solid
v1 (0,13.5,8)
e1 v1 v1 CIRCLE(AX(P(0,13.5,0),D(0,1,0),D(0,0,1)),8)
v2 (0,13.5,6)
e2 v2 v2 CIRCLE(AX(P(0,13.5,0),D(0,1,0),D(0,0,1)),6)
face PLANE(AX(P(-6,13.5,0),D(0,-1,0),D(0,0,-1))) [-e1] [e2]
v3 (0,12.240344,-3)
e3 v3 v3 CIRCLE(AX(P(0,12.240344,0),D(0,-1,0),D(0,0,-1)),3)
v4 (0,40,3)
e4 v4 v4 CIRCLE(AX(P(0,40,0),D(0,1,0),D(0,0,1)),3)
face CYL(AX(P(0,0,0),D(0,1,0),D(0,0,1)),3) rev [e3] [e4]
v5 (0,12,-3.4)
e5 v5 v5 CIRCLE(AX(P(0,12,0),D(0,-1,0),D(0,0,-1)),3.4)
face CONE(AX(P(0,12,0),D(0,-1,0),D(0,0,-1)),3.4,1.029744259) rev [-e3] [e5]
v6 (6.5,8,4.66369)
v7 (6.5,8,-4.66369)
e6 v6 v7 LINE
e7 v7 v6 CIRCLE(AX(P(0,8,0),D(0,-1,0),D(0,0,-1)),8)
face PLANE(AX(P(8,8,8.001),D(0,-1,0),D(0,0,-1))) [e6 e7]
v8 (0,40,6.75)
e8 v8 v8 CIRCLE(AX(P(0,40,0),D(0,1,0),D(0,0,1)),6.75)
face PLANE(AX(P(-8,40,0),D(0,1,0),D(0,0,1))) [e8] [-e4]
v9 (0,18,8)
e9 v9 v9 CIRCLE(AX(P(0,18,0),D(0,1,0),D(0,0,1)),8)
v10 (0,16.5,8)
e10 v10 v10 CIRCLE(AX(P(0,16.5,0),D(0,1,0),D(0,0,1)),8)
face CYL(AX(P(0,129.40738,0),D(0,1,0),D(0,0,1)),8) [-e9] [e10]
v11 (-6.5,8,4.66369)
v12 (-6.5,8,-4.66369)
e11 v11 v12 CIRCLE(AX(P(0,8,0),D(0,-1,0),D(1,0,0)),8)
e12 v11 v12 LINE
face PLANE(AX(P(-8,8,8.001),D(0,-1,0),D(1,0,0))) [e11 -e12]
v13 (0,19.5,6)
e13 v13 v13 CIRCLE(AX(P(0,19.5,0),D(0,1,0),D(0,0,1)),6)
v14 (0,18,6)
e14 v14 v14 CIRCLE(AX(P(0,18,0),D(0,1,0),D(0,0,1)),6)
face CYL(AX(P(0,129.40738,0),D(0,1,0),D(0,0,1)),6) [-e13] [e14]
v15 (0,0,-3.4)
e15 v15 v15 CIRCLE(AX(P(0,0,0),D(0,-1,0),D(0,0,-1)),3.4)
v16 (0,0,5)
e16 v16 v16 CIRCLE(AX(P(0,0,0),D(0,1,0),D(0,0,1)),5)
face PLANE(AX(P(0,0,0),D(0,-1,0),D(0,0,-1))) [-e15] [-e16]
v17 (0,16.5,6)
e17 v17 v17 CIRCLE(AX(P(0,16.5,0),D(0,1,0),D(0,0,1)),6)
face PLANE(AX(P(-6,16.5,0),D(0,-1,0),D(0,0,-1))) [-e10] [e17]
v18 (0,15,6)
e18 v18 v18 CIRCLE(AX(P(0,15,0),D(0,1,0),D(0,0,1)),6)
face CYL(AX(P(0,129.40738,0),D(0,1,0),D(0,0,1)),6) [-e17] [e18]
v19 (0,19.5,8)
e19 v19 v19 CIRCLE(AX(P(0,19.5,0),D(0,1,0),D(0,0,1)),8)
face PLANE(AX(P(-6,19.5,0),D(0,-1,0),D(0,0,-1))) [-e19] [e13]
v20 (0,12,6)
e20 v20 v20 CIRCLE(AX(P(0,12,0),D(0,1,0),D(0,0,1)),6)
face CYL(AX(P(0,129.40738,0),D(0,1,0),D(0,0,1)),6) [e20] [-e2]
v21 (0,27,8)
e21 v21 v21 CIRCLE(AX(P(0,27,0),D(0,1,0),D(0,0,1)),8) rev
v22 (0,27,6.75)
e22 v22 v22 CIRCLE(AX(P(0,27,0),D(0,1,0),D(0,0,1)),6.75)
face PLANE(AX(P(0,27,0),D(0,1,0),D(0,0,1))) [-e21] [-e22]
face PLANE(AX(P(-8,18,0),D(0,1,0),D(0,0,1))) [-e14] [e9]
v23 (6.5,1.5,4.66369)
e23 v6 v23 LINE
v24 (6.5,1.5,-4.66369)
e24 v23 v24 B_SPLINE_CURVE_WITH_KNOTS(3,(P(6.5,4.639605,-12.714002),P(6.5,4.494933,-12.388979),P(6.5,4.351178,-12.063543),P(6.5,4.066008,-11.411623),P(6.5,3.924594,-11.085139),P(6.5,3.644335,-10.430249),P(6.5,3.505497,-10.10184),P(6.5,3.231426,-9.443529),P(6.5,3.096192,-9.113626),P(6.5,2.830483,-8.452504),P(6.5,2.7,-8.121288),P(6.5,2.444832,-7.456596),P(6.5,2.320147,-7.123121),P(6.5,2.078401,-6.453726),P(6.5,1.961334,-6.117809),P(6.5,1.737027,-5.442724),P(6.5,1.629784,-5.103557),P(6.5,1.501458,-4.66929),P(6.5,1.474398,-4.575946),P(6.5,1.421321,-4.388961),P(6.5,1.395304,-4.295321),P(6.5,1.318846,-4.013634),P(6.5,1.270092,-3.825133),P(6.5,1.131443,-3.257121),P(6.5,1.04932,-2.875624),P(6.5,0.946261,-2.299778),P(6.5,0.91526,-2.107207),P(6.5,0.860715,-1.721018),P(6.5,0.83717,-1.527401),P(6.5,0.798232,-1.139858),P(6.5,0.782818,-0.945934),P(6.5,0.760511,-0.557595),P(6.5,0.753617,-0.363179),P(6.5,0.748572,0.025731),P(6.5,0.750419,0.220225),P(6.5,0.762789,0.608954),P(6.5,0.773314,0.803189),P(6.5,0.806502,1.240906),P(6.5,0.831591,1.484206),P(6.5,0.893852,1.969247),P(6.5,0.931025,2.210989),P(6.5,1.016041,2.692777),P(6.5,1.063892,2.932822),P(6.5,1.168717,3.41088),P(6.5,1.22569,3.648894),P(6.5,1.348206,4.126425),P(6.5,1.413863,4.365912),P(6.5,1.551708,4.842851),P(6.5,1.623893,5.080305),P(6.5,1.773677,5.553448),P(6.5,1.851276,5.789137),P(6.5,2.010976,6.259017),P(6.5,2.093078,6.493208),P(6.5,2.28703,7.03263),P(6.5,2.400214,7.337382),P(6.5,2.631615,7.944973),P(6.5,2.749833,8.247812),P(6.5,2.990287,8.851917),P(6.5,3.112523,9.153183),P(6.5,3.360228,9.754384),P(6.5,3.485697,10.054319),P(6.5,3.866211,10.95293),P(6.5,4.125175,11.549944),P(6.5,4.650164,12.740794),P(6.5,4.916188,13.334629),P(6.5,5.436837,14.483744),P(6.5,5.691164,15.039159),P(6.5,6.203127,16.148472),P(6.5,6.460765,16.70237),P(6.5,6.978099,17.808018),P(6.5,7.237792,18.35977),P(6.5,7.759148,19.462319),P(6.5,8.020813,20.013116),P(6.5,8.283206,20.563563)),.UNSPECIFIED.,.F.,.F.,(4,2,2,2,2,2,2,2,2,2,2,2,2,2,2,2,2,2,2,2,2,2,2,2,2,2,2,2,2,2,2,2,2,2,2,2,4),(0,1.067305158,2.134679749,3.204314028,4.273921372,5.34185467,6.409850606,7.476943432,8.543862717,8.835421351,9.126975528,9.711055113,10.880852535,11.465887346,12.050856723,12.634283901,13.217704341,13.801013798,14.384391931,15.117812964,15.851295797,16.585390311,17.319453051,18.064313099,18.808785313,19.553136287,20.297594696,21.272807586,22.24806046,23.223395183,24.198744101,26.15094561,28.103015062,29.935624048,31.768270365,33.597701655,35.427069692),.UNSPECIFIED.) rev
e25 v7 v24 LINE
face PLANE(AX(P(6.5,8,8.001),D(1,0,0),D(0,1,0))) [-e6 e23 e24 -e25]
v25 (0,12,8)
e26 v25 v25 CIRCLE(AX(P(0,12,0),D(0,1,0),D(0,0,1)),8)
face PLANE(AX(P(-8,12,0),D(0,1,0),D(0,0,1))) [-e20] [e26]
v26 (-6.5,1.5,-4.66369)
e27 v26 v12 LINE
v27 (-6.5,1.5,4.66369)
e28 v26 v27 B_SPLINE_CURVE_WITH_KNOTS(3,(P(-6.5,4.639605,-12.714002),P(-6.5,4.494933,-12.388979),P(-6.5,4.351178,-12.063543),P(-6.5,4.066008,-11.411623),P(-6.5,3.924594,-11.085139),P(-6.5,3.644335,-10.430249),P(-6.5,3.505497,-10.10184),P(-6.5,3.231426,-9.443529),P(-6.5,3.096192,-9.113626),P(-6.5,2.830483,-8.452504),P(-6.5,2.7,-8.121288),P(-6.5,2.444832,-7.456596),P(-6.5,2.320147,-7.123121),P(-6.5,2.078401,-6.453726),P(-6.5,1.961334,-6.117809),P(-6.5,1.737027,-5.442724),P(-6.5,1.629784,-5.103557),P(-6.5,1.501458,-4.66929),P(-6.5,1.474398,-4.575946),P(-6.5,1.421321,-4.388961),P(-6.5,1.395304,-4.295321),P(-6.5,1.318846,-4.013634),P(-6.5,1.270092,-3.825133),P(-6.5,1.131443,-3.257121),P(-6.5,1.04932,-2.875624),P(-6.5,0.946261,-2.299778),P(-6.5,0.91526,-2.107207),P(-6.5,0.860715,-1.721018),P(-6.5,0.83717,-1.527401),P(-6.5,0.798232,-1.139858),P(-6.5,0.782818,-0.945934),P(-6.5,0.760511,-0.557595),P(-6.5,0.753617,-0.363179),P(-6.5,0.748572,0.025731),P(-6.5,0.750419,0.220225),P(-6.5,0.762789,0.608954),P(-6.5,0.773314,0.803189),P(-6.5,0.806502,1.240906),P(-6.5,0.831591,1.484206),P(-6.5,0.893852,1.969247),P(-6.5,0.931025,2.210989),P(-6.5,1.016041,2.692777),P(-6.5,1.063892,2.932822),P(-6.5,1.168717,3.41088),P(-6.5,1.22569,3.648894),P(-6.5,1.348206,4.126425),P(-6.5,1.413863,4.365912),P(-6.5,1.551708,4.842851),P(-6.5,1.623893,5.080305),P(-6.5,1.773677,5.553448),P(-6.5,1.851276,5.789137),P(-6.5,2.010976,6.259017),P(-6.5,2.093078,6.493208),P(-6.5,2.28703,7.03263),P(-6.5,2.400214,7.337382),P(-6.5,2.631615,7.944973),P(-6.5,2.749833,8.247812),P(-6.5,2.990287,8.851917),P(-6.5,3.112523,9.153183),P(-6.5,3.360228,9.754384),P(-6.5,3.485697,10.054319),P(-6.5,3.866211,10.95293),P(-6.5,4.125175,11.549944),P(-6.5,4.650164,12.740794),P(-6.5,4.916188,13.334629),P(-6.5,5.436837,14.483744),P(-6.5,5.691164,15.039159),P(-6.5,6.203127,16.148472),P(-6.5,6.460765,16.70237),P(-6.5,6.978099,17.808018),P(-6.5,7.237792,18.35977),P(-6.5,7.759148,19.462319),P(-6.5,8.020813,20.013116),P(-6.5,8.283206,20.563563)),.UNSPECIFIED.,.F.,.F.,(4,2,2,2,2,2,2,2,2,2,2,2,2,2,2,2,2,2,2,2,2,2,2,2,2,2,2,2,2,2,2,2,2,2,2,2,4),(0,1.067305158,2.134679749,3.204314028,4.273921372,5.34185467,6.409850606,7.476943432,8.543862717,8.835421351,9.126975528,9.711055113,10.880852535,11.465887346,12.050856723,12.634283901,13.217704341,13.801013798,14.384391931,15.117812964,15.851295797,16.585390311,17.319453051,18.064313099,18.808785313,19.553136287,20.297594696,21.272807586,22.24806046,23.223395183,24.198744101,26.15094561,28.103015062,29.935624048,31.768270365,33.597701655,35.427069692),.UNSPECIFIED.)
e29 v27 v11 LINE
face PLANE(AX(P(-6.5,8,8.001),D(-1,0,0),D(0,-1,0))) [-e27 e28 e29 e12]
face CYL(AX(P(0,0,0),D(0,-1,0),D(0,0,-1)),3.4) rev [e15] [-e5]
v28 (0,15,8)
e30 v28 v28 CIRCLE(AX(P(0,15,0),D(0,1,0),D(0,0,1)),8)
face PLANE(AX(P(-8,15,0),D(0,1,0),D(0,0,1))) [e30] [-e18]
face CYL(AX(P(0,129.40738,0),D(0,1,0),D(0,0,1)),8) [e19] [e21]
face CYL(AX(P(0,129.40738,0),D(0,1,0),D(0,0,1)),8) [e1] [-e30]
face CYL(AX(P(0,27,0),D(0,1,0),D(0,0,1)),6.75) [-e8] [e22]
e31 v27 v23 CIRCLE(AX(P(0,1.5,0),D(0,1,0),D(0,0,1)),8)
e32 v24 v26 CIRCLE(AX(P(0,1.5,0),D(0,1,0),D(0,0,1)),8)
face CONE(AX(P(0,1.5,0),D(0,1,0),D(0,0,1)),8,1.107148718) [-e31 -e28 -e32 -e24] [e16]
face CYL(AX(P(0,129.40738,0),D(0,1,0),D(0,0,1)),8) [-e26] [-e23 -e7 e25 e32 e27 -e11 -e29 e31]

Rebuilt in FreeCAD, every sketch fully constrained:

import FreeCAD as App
import Part
import Sketcher
from FreeCAD import Vector

doc = App.newDocument("Part")
body = doc.addObject("PartDesign::Body", "Body")

# Sketch on XY plane
sketch1 = body.newObject("Sketcher::SketchObject", "Sketch")
sketch1.AttachmentSupport = (doc.getObject("XY_Plane"), [""])
sketch1.MapMode = "FlatFace"
sketch1.addGeometry([
    Part.LineSegment(Vector(-5, 0, 0), Vector(0, 0, 0)),  # 0
    Part.LineSegment(Vector(0, 0, 0), Vector(0, 40, 0)),  # 1
    Part.LineSegment(Vector(0, 40, 0), Vector(-8, 40, 0)),  # 2
    Part.LineSegment(Vector(-8, 40, 0), Vector(-8, 19.5, 0)),  # 3
    Part.LineSegment(Vector(-8, 19.5, 0), Vector(-6, 19.5, 0)),  # 4
    Part.LineSegment(Vector(-6, 19.5, 0), Vector(-6, 18, 0)),  # 5
    Part.LineSegment(Vector(-6, 18, 0), Vector(-8, 18, 0)),  # 6
    Part.LineSegment(Vector(-8, 18, 0), Vector(-8, 16.5, 0)),  # 7
    Part.LineSegment(Vector(-8, 16.5, 0), Vector(-6, 16.5, 0)),  # 8
    Part.LineSegment(Vector(-6, 16.5, 0), Vector(-6, 15, 0)),  # 9
    Part.LineSegment(Vector(-6, 15, 0), Vector(-8, 15, 0)),  # 10
    Part.LineSegment(Vector(-8, 15, 0), Vector(-8, 13.5, 0)),  # 11
    Part.LineSegment(Vector(-8, 13.5, 0), Vector(-6, 13.5, 0)),  # 12
    Part.LineSegment(Vector(-6, 13.5, 0), Vector(-6, 12, 0)),  # 13
    Part.LineSegment(Vector(-6, 12, 0), Vector(-8, 12, 0)),  # 14
    Part.LineSegment(Vector(-8, 12, 0), Vector(-8, 1.5, 0)),  # 15
    Part.LineSegment(Vector(-8, 1.5, 0), Vector(-5, 0, 0)),  # 16
], False)
sketch1.addConstraint([
    Sketcher.Constraint("Coincident", 0, 2, 1, 1),
    Sketcher.Constraint("Coincident", 1, 2, 2, 1),
    Sketcher.Constraint("Coincident", 2, 2, 3, 1),
    Sketcher.Constraint("Coincident", 3, 2, 4, 1),
    Sketcher.Constraint("Coincident", 4, 2, 5, 1),
    Sketcher.Constraint("Coincident", 5, 2, 6, 1),
    Sketcher.Constraint("Coincident", 6, 2, 7, 1),
    Sketcher.Constraint("Coincident", 7, 2, 8, 1),
    Sketcher.Constraint("Coincident", 8, 2, 9, 1),
    Sketcher.Constraint("Coincident", 9, 2, 10, 1),
    Sketcher.Constraint("Coincident", 10, 2, 11, 1),
    Sketcher.Constraint("Coincident", 11, 2, 12, 1),
    Sketcher.Constraint("Coincident", 12, 2, 13, 1),
    Sketcher.Constraint("Coincident", 13, 2, 14, 1),
    Sketcher.Constraint("Coincident", 14, 2, 15, 1),
    Sketcher.Constraint("Coincident", 15, 2, 16, 1),
    Sketcher.Constraint("Coincident", 16, 2, 0, 1),
    Sketcher.Constraint("Horizontal", 0),
    Sketcher.Constraint("Vertical", 1),
    Sketcher.Constraint("Horizontal", 2),
    Sketcher.Constraint("Vertical", 3),
    Sketcher.Constraint("Horizontal", 4),
    Sketcher.Constraint("Vertical", 5),
    Sketcher.Constraint("Horizontal", 6),
    Sketcher.Constraint("Vertical", 7),
    Sketcher.Constraint("Horizontal", 8),
    Sketcher.Constraint("Vertical", 9),
    Sketcher.Constraint("Horizontal", 10),
    Sketcher.Constraint("Vertical", 11),
    Sketcher.Constraint("Horizontal", 12),
    Sketcher.Constraint("Vertical", 13),
    Sketcher.Constraint("Horizontal", 14),
    Sketcher.Constraint("Vertical", 15),
    Sketcher.Constraint("Coincident", 0, 2, -1, 1),
    Sketcher.Constraint("Vertical", 3, 2, 6, 2),
    Sketcher.Constraint("Vertical", 5, 2, 8, 2),
    Sketcher.Constraint("Vertical", 7, 2, 10, 2),
    Sketcher.Constraint("Vertical", 9, 2, 12, 2),
    Sketcher.Constraint("Vertical", 11, 2, 14, 2),
    Sketcher.Constraint("Equal", 5, 7),
    Sketcher.Constraint("Equal", 7, 9),
    Sketcher.Constraint("Equal", 9, 11),
    Sketcher.Constraint("Equal", 11, 13),
    Sketcher.Constraint("DistanceX", 0, 1, 0, 2, 5.0),
    Sketcher.Constraint("DistanceX", 2, 2, 2, 1, 8.0),
    Sketcher.Constraint("DistanceX", 4, 1, 4, 2, 2.0),
    Sketcher.Constraint("DistanceY", 1, 1, 1, 2, 40.0),
    Sketcher.Constraint("DistanceY", 3, 2, 3, 1, 20.5),
    Sketcher.Constraint("DistanceY", 5, 2, 5, 1, 1.5),
    Sketcher.Constraint("DistanceY", 15, 2, 15, 1, 10.5),
])
revolution = body.newObject("PartDesign::Revolution", "Revolution")
revolution.Profile = sketch1
revolution.ReferenceAxis = (sketch1, ["V_Axis"])
revolution.Angle = 360

# Sketch on XY plane
sketch2 = body.newObject("Sketcher::SketchObject", "Sketch001")
sketch2.AttachmentSupport = (doc.getObject("XY_Plane"), [""])
sketch2.MapMode = "FlatFace"
sketch2.addGeometry([
    Part.LineSegment(Vector(-8, 8, 0), Vector(-8, 0, 0)),
    Part.LineSegment(Vector(-8, 0, 0), Vector(-6.5, 0, 0)),
    Part.LineSegment(Vector(-6.5, 0, 0), Vector(-6.5, 8, 0)),
    Part.LineSegment(Vector(-6.5, 8, 0), Vector(-8, 8, 0)),
], False)
sketch2.addConstraint([
    Sketcher.Constraint("Coincident", 0, 2, 1, 1),
    Sketcher.Constraint("Coincident", 1, 2, 2, 1),
    Sketcher.Constraint("Coincident", 2, 2, 3, 1),
    Sketcher.Constraint("Coincident", 3, 2, 0, 1),
    Sketcher.Constraint("Vertical", 0),
    Sketcher.Constraint("Horizontal", 1),
    Sketcher.Constraint("Vertical", 2),
    Sketcher.Constraint("Horizontal", 3),
    Sketcher.Constraint("PointOnObject", 0, 2, -1),
    Sketcher.Constraint("DistanceY", 0, 2, 0, 1, 8.0),
    Sketcher.Constraint("DistanceX", 1, 1, 1, 2, 1.5),
    Sketcher.Constraint("DistanceX", 0, 2, -1, 1, 8.0),
])
pocket1 = body.newObject("PartDesign::Pocket", "Pocket")
pocket1.Profile = sketch2
pocket1.Length = 4.66369

# Sketch on XY plane
sketch3 = body.newObject("Sketcher::SketchObject", "Sketch002")
sketch3.AttachmentSupport = (doc.getObject("XY_Plane"), [""])
sketch3.MapMode = "FlatFace"
sketch3.addGeometry([
    Part.LineSegment(Vector(6.5, 8, 0), Vector(6.5, 0, 0)),
    Part.LineSegment(Vector(6.5, 0, 0), Vector(8, 0, 0)),
    Part.LineSegment(Vector(8, 0, 0), Vector(8, 8, 0)),
    Part.LineSegment(Vector(8, 8, 0), Vector(6.5, 8, 0)),
], False)
sketch3.addConstraint([
    Sketcher.Constraint("Coincident", 0, 2, 1, 1),
    Sketcher.Constraint("Coincident", 1, 2, 2, 1),
    Sketcher.Constraint("Coincident", 2, 2, 3, 1),
    Sketcher.Constraint("Coincident", 3, 2, 0, 1),
    Sketcher.Constraint("Vertical", 0),
    Sketcher.Constraint("Horizontal", 1),
    Sketcher.Constraint("Vertical", 2),
    Sketcher.Constraint("Horizontal", 3),
    Sketcher.Constraint("PointOnObject", 0, 2, -1),
    Sketcher.Constraint("DistanceY", 0, 2, 0, 1, 8.0),
    Sketcher.Constraint("DistanceX", 1, 1, 1, 2, 1.5),
    Sketcher.Constraint("DistanceX", -1, 1, 1, 2, 8.0),
])
pocket2 = body.newObject("PartDesign::Pocket", "Pocket001")
pocket2.Profile = sketch3
pocket2.Length = 4.66369

# Sketch on XY plane
sketch4 = body.newObject("Sketcher::SketchObject", "Sketch003")
sketch4.AttachmentSupport = (doc.getObject("XY_Plane"), [""])
sketch4.MapMode = "FlatFace"
sketch4.addGeometry([
    Part.LineSegment(Vector(-8, 8, 0), Vector(-8, 0, 0)),
    Part.LineSegment(Vector(-8, 0, 0), Vector(-6.5, 0, 0)),
    Part.LineSegment(Vector(-6.5, 0, 0), Vector(-6.5, 8, 0)),
    Part.LineSegment(Vector(-6.5, 8, 0), Vector(-8, 8, 0)),
], False)
sketch4.addConstraint([
    Sketcher.Constraint("Coincident", 0, 2, 1, 1),
    Sketcher.Constraint("Coincident", 1, 2, 2, 1),
    Sketcher.Constraint("Coincident", 2, 2, 3, 1),
    Sketcher.Constraint("Coincident", 3, 2, 0, 1),
    Sketcher.Constraint("Vertical", 0),
    Sketcher.Constraint("Horizontal", 1),
    Sketcher.Constraint("Vertical", 2),
    Sketcher.Constraint("Horizontal", 3),
    Sketcher.Constraint("PointOnObject", 0, 2, -1),
    Sketcher.Constraint("DistanceY", 0, 2, 0, 1, 8.0),
    Sketcher.Constraint("DistanceX", 1, 1, 1, 2, 1.5),
    Sketcher.Constraint("DistanceX", 0, 2, -1, 1, 8.0),
])
pocket3 = body.newObject("PartDesign::Pocket", "Pocket002")
pocket3.Profile = sketch4
pocket3.Length = 4.66369
pocket3.Reversed = True

# Sketch on XY plane
sketch5 = body.newObject("Sketcher::SketchObject", "Sketch004")
sketch5.AttachmentSupport = (doc.getObject("XY_Plane"), [""])
sketch5.MapMode = "FlatFace"
sketch5.addGeometry([
    Part.LineSegment(Vector(6.5, 8, 0), Vector(6.5, 0, 0)),
    Part.LineSegment(Vector(6.5, 0, 0), Vector(8, 0, 0)),
    Part.LineSegment(Vector(8, 0, 0), Vector(8, 8, 0)),
    Part.LineSegment(Vector(8, 8, 0), Vector(6.5, 8, 0)),
], False)
sketch5.addConstraint([
    Sketcher.Constraint("Coincident", 0, 2, 1, 1),
    Sketcher.Constraint("Coincident", 1, 2, 2, 1),
    Sketcher.Constraint("Coincident", 2, 2, 3, 1),
    Sketcher.Constraint("Coincident", 3, 2, 0, 1),
    Sketcher.Constraint("Vertical", 0),
    Sketcher.Constraint("Horizontal", 1),
    Sketcher.Constraint("Vertical", 2),
    Sketcher.Constraint("Horizontal", 3),
    Sketcher.Constraint("PointOnObject", 0, 2, -1),
    Sketcher.Constraint("DistanceY", 0, 2, 0, 1, 8.0),
    Sketcher.Constraint("DistanceX", 1, 1, 1, 2, 1.5),
    Sketcher.Constraint("DistanceX", -1, 1, 1, 2, 8.0),
])
pocket4 = body.newObject("PartDesign::Pocket", "Pocket003")
pocket4.Profile = sketch5
pocket4.Length = 4.66369
pocket4.Reversed = True

# Sketch on XZ plane
sketch6 = body.newObject("Sketcher::SketchObject", "Sketch005")
sketch6.AttachmentSupport = (doc.getObject("XZ_Plane"), [""])
sketch6.MapMode = "FlatFace"
sketch6.AttachmentOffset = App.Placement(Vector(0, 0, -40), App.Rotation())
sketch6.addGeometry(Part.Circle(Vector(0, 0, 0), Vector(0, 0, 1), 3), False)
sketch6.addConstraint([
    Sketcher.Constraint("Coincident", 0, 3, -1, 1),
    Sketcher.Constraint("Diameter", 0, 6.0),
])
pocket5 = body.newObject("PartDesign::Pocket", "Pocket004")
pocket5.Profile = sketch6
pocket5.Type = "ThroughAll"
pocket5.Reversed = True

# Sketch on XZ plane
sketch7 = body.newObject("Sketcher::SketchObject", "Sketch006")
sketch7.AttachmentSupport = (doc.getObject("XZ_Plane"), [""])
sketch7.MapMode = "FlatFace"
sketch7.addGeometry(Part.Circle(Vector(0, 0, 0), Vector(0, 0, 1), 3.4), False)
sketch7.addConstraint([
    Sketcher.Constraint("Coincident", 0, 3, -1, 1),
    Sketcher.Constraint("Diameter", 0, 6.8),
])
doc.recompute()
hole = body.newObject("PartDesign::Hole", "Hole")
hole.Profile = sketch7
hole.ThreadType = "None"
hole.Diameter = 6.8
hole.DepthType = "Dimension"
hole.Depth = 12
hole.DrillPoint = "Angled"
hole.DrillPointAngle = 118

# Sketch on XZ plane
sketch8 = body.newObject("Sketcher::SketchObject", "Sketch007")
sketch8.AttachmentSupport = (doc.getObject("XZ_Plane"), [""])
sketch8.MapMode = "FlatFace"
sketch8.AttachmentOffset = App.Placement(Vector(0, 0, -40), App.Rotation())
sketch8.addGeometry([
    Part.LineSegment(Vector(-13.596, -13.596, 0), Vector(-13.596, 13.596, 0)),  # 0
    Part.LineSegment(Vector(-13.596, 13.596, 0), Vector(13.596, 13.596, 0)),  # 1
    Part.LineSegment(Vector(13.596, 13.596, 0), Vector(13.596, -13.596, 0)),  # 2
    Part.LineSegment(Vector(13.596, -13.596, 0), Vector(-13.596, -13.596, 0)),  # 3
    Part.Circle(Vector(0, 0, 0), Vector(0, 0, 1), 6.75),  # 4
], False)
sketch8.addConstraint([
    Sketcher.Constraint("Coincident", 0, 2, 1, 1),
    Sketcher.Constraint("Coincident", 1, 2, 2, 1),
    Sketcher.Constraint("Coincident", 2, 2, 3, 1),
    Sketcher.Constraint("Coincident", 3, 2, 0, 1),
    Sketcher.Constraint("Vertical", 0),
    Sketcher.Constraint("Horizontal", 1),
    Sketcher.Constraint("Vertical", 2),
    Sketcher.Constraint("Horizontal", 3),
    Sketcher.Constraint("Coincident", 4, 3, -1, 1),
    Sketcher.Constraint("Symmetric", 0, 2, 2, 2, -1, 1),
    Sketcher.Constraint("Equal", 3, 0),
    Sketcher.Constraint("Diameter", 4, 13.5),
    Sketcher.Constraint("DistanceX", 1, 1, 1, 2, 27.192),
])
pocket6 = body.newObject("PartDesign::Pocket", "Pocket005")
pocket6.Profile = sketch8
pocket6.Length = 13
pocket6.Reversed = True

doc.recompute()
